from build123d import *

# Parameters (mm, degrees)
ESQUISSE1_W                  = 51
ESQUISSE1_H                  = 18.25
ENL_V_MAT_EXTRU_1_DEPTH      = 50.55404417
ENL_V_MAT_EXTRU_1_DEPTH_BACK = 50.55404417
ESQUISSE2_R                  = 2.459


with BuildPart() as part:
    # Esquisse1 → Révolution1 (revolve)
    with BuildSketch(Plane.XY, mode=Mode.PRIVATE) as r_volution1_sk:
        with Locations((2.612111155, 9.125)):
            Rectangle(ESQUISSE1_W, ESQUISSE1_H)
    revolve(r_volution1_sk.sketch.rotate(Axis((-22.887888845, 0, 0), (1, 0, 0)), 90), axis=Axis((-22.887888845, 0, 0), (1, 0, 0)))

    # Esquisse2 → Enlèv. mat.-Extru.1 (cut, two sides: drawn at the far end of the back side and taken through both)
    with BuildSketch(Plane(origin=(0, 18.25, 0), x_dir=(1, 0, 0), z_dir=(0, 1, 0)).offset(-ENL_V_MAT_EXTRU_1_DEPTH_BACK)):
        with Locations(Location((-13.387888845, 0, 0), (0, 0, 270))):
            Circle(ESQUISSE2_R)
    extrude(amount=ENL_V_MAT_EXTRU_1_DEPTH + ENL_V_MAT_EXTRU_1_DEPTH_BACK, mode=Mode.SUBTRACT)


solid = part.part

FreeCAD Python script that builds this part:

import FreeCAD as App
import Part
import Sketcher
from FreeCAD import Vector
Q = App.Units.Quantity


def add_polygon(sketch, points):
    """Adds a closed chain of lines whose ends are joined by coincident constraints."""
    first, n = sketch.GeometryCount, len(points)
    for a, b in zip(points, points[1:] + points[:1]):
        sketch.addGeometry(Part.LineSegment(App.Vector(*a, 0), App.Vector(*b, 0)), False)
    for i in range(n):
        sketch.addConstraint(Sketcher.Constraint("Coincident", first + i, 2, first + (i + 1) % n, 1))

doc = App.newDocument("Part")
body = doc.addObject("PartDesign::Body", "Body")

sketch1 = body.newObject("Sketcher::SketchObject", "Sketch")
sketch1.AttachmentSupport = (doc.getObject("XY_Plane"), [""])
sketch1.MapMode = "FlatFace"
add_polygon(sketch1, [(-23, 18), (-23, 0), (28, 0), (28, 18)])
sketch1.addConstraint([
    Sketcher.Constraint("Vertical", 0),
    Sketcher.Constraint("Horizontal", 1),
    Sketcher.Constraint("Vertical", 2),
    Sketcher.Constraint("Horizontal", 3),
    Sketcher.Constraint("PointOnObject", 0, 2, -1),
    Sketcher.Constraint("DistanceX", 1, 1, 1, 2, Q("51 mm")),
    Sketcher.Constraint("DistanceY", 0, 2, 0, 1, Q("18.25 mm")),
    Sketcher.Constraint("DistanceX", 0, 2, -1, 1, Q("22.887889 mm")),
])
revolution = body.newObject("PartDesign::Revolution", "Revolution")
revolution.Profile = sketch1
revolution.ReferenceAxis = (sketch1, ["H_Axis"])
revolution.Angle = 360

sketch2 = body.newObject("Sketcher::SketchObject", "Sketch001")
sketch2.AttachmentSupport = (doc.getObject("XZ_Plane"), [""])
sketch2.MapMode = "FlatFace"
sketch2.AttachmentOffset = App.Placement(Vector(0, 0, -18.25), App.Rotation())
sketch2.addGeometry(Part.Circle(Vector(-13.4, 0, 0), Vector(0, 0, 1), 2.5), False)
sketch2.addConstraint([
    Sketcher.Constraint("PointOnObject", 0, 3, -1),
    Sketcher.Constraint("Diameter", 0, Q("4.918 mm")),
    Sketcher.Constraint("DistanceX", 0, 3, -1, 1, Q("13.387889 mm")),
])
pocket1 = body.newObject("PartDesign::Pocket", "Pocket")
pocket1.Profile = sketch2
pocket1.Type = "ThroughAll"
pocket1.Midplane = True

doc.recompute()
